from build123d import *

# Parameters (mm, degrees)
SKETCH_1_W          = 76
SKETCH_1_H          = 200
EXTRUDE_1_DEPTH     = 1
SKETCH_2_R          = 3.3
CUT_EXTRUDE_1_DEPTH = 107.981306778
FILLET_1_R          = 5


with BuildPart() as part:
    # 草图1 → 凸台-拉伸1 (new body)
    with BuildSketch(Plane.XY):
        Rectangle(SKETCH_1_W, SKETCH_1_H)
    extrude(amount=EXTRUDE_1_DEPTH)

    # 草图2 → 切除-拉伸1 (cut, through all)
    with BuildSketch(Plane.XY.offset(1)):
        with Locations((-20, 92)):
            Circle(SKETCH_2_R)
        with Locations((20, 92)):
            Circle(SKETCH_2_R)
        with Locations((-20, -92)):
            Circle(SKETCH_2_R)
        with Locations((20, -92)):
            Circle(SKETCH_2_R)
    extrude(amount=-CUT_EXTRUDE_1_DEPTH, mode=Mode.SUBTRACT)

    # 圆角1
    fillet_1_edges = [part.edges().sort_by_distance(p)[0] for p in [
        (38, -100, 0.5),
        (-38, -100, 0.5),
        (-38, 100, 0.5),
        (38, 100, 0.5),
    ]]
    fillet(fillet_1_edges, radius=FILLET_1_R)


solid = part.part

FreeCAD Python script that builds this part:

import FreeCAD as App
import Part
import Sketcher
from FreeCAD import Vector


def edges_at(feature, points):
    """Names of the edges that pass closest to the given points."""
    edges = feature.Shape.Edges
    near = lambda p: min(range(len(edges)), key=lambda i: edges[i].distToShape(Part.Vertex(*p))[0])
    return sorted({f"Edge{near(p) + 1}" for p in points})

doc = App.newDocument("Part")
body = doc.addObject("PartDesign::Body", "Body")

sketch1 = body.newObject("Sketcher::SketchObject", "Sketch")
sketch1.AttachmentSupport = (doc.getObject("XY_Plane"), [""])
sketch1.MapMode = "FlatFace"
sketch1.addGeometry([
    Part.LineSegment(Vector(-38, 100, 0), Vector(-38, -100, 0)),
    Part.LineSegment(Vector(-38, -100, 0), Vector(38, -100, 0)),
    Part.LineSegment(Vector(38, -100, 0), Vector(38, 100, 0)),
    Part.LineSegment(Vector(38, 100, 0), Vector(-38, 100, 0)),
], False)
sketch1.addConstraint([
    Sketcher.Constraint("Coincident", 0, 2, 1, 1),
    Sketcher.Constraint("Coincident", 1, 2, 2, 1),
    Sketcher.Constraint("Coincident", 2, 2, 3, 1),
    Sketcher.Constraint("Coincident", 3, 2, 0, 1),
    Sketcher.Constraint("Vertical", 0),
    Sketcher.Constraint("Horizontal", 1),
    Sketcher.Constraint("Vertical", 2),
    Sketcher.Constraint("Horizontal", 3),
    Sketcher.Constraint("Symmetric", 0, 2, 2, 2, -1, 1),
    Sketcher.Constraint("DistanceX", 1, 1, 1, 2, 76.0),
    Sketcher.Constraint("DistanceY", 0, 2, 0, 1, 200.0),
])
pad1 = body.newObject("PartDesign::Pad", "Pad")
pad1.Profile = sketch1
pad1.Length = 1

sketch2 = body.newObject("Sketcher::SketchObject", "Sketch001")
sketch2.AttachmentSupport = (doc.getObject("XY_Plane"), [""])
sketch2.MapMode = "FlatFace"
sketch2.AttachmentOffset = App.Placement(Vector(0, 0, 1), App.Rotation())
sketch2.addGeometry([
    Part.Circle(Vector(-20, 92, 0), Vector(0, 0, 1), 3.3),
    Part.Circle(Vector(20, 92, 0), Vector(0, 0, 1), 3.3),
    Part.Circle(Vector(-20, -92, 0), Vector(0, 0, 1), 3.3),
    Part.Circle(Vector(20, -92, 0), Vector(0, 0, 1), 3.3),
], False)
sketch2.addConstraint([
    Sketcher.Constraint("Equal", 0, 1),
    Sketcher.Constraint("Equal", 1, 2),
    Sketcher.Constraint("Equal", 2, 3),
    Sketcher.Constraint("Symmetric", 1, 3, 2, 3, -1, 1),
    Sketcher.Constraint("Symmetric", 0, 3, 3, 3, -1, 1),
    Sketcher.Constraint("Symmetric", 0, 3, 1, 3, -2),
    Sketcher.Constraint("Diameter", 0, 6.6),
    Sketcher.Constraint("DistanceX", 0, 3, -1, 1, 20.0),
    Sketcher.Constraint("DistanceY", -1, 1, 0, 3, 92.0),
])
pocket1 = body.newObject("PartDesign::Pocket", "Pocket")
pocket1.Profile = sketch2
pocket1.Type = "ThroughAll"
doc.recompute()

fillet = body.newObject("PartDesign::Fillet", "Fillet")
fillet.Base = (pocket1, edges_at(pocket1, [
    (38, -100, 0.5),
    (-38, -100, 0.5),
    (-38, 100, 0.5),
    (38, 100, 0.5),
]))
fillet.Radius = 5

doc.recompute()
